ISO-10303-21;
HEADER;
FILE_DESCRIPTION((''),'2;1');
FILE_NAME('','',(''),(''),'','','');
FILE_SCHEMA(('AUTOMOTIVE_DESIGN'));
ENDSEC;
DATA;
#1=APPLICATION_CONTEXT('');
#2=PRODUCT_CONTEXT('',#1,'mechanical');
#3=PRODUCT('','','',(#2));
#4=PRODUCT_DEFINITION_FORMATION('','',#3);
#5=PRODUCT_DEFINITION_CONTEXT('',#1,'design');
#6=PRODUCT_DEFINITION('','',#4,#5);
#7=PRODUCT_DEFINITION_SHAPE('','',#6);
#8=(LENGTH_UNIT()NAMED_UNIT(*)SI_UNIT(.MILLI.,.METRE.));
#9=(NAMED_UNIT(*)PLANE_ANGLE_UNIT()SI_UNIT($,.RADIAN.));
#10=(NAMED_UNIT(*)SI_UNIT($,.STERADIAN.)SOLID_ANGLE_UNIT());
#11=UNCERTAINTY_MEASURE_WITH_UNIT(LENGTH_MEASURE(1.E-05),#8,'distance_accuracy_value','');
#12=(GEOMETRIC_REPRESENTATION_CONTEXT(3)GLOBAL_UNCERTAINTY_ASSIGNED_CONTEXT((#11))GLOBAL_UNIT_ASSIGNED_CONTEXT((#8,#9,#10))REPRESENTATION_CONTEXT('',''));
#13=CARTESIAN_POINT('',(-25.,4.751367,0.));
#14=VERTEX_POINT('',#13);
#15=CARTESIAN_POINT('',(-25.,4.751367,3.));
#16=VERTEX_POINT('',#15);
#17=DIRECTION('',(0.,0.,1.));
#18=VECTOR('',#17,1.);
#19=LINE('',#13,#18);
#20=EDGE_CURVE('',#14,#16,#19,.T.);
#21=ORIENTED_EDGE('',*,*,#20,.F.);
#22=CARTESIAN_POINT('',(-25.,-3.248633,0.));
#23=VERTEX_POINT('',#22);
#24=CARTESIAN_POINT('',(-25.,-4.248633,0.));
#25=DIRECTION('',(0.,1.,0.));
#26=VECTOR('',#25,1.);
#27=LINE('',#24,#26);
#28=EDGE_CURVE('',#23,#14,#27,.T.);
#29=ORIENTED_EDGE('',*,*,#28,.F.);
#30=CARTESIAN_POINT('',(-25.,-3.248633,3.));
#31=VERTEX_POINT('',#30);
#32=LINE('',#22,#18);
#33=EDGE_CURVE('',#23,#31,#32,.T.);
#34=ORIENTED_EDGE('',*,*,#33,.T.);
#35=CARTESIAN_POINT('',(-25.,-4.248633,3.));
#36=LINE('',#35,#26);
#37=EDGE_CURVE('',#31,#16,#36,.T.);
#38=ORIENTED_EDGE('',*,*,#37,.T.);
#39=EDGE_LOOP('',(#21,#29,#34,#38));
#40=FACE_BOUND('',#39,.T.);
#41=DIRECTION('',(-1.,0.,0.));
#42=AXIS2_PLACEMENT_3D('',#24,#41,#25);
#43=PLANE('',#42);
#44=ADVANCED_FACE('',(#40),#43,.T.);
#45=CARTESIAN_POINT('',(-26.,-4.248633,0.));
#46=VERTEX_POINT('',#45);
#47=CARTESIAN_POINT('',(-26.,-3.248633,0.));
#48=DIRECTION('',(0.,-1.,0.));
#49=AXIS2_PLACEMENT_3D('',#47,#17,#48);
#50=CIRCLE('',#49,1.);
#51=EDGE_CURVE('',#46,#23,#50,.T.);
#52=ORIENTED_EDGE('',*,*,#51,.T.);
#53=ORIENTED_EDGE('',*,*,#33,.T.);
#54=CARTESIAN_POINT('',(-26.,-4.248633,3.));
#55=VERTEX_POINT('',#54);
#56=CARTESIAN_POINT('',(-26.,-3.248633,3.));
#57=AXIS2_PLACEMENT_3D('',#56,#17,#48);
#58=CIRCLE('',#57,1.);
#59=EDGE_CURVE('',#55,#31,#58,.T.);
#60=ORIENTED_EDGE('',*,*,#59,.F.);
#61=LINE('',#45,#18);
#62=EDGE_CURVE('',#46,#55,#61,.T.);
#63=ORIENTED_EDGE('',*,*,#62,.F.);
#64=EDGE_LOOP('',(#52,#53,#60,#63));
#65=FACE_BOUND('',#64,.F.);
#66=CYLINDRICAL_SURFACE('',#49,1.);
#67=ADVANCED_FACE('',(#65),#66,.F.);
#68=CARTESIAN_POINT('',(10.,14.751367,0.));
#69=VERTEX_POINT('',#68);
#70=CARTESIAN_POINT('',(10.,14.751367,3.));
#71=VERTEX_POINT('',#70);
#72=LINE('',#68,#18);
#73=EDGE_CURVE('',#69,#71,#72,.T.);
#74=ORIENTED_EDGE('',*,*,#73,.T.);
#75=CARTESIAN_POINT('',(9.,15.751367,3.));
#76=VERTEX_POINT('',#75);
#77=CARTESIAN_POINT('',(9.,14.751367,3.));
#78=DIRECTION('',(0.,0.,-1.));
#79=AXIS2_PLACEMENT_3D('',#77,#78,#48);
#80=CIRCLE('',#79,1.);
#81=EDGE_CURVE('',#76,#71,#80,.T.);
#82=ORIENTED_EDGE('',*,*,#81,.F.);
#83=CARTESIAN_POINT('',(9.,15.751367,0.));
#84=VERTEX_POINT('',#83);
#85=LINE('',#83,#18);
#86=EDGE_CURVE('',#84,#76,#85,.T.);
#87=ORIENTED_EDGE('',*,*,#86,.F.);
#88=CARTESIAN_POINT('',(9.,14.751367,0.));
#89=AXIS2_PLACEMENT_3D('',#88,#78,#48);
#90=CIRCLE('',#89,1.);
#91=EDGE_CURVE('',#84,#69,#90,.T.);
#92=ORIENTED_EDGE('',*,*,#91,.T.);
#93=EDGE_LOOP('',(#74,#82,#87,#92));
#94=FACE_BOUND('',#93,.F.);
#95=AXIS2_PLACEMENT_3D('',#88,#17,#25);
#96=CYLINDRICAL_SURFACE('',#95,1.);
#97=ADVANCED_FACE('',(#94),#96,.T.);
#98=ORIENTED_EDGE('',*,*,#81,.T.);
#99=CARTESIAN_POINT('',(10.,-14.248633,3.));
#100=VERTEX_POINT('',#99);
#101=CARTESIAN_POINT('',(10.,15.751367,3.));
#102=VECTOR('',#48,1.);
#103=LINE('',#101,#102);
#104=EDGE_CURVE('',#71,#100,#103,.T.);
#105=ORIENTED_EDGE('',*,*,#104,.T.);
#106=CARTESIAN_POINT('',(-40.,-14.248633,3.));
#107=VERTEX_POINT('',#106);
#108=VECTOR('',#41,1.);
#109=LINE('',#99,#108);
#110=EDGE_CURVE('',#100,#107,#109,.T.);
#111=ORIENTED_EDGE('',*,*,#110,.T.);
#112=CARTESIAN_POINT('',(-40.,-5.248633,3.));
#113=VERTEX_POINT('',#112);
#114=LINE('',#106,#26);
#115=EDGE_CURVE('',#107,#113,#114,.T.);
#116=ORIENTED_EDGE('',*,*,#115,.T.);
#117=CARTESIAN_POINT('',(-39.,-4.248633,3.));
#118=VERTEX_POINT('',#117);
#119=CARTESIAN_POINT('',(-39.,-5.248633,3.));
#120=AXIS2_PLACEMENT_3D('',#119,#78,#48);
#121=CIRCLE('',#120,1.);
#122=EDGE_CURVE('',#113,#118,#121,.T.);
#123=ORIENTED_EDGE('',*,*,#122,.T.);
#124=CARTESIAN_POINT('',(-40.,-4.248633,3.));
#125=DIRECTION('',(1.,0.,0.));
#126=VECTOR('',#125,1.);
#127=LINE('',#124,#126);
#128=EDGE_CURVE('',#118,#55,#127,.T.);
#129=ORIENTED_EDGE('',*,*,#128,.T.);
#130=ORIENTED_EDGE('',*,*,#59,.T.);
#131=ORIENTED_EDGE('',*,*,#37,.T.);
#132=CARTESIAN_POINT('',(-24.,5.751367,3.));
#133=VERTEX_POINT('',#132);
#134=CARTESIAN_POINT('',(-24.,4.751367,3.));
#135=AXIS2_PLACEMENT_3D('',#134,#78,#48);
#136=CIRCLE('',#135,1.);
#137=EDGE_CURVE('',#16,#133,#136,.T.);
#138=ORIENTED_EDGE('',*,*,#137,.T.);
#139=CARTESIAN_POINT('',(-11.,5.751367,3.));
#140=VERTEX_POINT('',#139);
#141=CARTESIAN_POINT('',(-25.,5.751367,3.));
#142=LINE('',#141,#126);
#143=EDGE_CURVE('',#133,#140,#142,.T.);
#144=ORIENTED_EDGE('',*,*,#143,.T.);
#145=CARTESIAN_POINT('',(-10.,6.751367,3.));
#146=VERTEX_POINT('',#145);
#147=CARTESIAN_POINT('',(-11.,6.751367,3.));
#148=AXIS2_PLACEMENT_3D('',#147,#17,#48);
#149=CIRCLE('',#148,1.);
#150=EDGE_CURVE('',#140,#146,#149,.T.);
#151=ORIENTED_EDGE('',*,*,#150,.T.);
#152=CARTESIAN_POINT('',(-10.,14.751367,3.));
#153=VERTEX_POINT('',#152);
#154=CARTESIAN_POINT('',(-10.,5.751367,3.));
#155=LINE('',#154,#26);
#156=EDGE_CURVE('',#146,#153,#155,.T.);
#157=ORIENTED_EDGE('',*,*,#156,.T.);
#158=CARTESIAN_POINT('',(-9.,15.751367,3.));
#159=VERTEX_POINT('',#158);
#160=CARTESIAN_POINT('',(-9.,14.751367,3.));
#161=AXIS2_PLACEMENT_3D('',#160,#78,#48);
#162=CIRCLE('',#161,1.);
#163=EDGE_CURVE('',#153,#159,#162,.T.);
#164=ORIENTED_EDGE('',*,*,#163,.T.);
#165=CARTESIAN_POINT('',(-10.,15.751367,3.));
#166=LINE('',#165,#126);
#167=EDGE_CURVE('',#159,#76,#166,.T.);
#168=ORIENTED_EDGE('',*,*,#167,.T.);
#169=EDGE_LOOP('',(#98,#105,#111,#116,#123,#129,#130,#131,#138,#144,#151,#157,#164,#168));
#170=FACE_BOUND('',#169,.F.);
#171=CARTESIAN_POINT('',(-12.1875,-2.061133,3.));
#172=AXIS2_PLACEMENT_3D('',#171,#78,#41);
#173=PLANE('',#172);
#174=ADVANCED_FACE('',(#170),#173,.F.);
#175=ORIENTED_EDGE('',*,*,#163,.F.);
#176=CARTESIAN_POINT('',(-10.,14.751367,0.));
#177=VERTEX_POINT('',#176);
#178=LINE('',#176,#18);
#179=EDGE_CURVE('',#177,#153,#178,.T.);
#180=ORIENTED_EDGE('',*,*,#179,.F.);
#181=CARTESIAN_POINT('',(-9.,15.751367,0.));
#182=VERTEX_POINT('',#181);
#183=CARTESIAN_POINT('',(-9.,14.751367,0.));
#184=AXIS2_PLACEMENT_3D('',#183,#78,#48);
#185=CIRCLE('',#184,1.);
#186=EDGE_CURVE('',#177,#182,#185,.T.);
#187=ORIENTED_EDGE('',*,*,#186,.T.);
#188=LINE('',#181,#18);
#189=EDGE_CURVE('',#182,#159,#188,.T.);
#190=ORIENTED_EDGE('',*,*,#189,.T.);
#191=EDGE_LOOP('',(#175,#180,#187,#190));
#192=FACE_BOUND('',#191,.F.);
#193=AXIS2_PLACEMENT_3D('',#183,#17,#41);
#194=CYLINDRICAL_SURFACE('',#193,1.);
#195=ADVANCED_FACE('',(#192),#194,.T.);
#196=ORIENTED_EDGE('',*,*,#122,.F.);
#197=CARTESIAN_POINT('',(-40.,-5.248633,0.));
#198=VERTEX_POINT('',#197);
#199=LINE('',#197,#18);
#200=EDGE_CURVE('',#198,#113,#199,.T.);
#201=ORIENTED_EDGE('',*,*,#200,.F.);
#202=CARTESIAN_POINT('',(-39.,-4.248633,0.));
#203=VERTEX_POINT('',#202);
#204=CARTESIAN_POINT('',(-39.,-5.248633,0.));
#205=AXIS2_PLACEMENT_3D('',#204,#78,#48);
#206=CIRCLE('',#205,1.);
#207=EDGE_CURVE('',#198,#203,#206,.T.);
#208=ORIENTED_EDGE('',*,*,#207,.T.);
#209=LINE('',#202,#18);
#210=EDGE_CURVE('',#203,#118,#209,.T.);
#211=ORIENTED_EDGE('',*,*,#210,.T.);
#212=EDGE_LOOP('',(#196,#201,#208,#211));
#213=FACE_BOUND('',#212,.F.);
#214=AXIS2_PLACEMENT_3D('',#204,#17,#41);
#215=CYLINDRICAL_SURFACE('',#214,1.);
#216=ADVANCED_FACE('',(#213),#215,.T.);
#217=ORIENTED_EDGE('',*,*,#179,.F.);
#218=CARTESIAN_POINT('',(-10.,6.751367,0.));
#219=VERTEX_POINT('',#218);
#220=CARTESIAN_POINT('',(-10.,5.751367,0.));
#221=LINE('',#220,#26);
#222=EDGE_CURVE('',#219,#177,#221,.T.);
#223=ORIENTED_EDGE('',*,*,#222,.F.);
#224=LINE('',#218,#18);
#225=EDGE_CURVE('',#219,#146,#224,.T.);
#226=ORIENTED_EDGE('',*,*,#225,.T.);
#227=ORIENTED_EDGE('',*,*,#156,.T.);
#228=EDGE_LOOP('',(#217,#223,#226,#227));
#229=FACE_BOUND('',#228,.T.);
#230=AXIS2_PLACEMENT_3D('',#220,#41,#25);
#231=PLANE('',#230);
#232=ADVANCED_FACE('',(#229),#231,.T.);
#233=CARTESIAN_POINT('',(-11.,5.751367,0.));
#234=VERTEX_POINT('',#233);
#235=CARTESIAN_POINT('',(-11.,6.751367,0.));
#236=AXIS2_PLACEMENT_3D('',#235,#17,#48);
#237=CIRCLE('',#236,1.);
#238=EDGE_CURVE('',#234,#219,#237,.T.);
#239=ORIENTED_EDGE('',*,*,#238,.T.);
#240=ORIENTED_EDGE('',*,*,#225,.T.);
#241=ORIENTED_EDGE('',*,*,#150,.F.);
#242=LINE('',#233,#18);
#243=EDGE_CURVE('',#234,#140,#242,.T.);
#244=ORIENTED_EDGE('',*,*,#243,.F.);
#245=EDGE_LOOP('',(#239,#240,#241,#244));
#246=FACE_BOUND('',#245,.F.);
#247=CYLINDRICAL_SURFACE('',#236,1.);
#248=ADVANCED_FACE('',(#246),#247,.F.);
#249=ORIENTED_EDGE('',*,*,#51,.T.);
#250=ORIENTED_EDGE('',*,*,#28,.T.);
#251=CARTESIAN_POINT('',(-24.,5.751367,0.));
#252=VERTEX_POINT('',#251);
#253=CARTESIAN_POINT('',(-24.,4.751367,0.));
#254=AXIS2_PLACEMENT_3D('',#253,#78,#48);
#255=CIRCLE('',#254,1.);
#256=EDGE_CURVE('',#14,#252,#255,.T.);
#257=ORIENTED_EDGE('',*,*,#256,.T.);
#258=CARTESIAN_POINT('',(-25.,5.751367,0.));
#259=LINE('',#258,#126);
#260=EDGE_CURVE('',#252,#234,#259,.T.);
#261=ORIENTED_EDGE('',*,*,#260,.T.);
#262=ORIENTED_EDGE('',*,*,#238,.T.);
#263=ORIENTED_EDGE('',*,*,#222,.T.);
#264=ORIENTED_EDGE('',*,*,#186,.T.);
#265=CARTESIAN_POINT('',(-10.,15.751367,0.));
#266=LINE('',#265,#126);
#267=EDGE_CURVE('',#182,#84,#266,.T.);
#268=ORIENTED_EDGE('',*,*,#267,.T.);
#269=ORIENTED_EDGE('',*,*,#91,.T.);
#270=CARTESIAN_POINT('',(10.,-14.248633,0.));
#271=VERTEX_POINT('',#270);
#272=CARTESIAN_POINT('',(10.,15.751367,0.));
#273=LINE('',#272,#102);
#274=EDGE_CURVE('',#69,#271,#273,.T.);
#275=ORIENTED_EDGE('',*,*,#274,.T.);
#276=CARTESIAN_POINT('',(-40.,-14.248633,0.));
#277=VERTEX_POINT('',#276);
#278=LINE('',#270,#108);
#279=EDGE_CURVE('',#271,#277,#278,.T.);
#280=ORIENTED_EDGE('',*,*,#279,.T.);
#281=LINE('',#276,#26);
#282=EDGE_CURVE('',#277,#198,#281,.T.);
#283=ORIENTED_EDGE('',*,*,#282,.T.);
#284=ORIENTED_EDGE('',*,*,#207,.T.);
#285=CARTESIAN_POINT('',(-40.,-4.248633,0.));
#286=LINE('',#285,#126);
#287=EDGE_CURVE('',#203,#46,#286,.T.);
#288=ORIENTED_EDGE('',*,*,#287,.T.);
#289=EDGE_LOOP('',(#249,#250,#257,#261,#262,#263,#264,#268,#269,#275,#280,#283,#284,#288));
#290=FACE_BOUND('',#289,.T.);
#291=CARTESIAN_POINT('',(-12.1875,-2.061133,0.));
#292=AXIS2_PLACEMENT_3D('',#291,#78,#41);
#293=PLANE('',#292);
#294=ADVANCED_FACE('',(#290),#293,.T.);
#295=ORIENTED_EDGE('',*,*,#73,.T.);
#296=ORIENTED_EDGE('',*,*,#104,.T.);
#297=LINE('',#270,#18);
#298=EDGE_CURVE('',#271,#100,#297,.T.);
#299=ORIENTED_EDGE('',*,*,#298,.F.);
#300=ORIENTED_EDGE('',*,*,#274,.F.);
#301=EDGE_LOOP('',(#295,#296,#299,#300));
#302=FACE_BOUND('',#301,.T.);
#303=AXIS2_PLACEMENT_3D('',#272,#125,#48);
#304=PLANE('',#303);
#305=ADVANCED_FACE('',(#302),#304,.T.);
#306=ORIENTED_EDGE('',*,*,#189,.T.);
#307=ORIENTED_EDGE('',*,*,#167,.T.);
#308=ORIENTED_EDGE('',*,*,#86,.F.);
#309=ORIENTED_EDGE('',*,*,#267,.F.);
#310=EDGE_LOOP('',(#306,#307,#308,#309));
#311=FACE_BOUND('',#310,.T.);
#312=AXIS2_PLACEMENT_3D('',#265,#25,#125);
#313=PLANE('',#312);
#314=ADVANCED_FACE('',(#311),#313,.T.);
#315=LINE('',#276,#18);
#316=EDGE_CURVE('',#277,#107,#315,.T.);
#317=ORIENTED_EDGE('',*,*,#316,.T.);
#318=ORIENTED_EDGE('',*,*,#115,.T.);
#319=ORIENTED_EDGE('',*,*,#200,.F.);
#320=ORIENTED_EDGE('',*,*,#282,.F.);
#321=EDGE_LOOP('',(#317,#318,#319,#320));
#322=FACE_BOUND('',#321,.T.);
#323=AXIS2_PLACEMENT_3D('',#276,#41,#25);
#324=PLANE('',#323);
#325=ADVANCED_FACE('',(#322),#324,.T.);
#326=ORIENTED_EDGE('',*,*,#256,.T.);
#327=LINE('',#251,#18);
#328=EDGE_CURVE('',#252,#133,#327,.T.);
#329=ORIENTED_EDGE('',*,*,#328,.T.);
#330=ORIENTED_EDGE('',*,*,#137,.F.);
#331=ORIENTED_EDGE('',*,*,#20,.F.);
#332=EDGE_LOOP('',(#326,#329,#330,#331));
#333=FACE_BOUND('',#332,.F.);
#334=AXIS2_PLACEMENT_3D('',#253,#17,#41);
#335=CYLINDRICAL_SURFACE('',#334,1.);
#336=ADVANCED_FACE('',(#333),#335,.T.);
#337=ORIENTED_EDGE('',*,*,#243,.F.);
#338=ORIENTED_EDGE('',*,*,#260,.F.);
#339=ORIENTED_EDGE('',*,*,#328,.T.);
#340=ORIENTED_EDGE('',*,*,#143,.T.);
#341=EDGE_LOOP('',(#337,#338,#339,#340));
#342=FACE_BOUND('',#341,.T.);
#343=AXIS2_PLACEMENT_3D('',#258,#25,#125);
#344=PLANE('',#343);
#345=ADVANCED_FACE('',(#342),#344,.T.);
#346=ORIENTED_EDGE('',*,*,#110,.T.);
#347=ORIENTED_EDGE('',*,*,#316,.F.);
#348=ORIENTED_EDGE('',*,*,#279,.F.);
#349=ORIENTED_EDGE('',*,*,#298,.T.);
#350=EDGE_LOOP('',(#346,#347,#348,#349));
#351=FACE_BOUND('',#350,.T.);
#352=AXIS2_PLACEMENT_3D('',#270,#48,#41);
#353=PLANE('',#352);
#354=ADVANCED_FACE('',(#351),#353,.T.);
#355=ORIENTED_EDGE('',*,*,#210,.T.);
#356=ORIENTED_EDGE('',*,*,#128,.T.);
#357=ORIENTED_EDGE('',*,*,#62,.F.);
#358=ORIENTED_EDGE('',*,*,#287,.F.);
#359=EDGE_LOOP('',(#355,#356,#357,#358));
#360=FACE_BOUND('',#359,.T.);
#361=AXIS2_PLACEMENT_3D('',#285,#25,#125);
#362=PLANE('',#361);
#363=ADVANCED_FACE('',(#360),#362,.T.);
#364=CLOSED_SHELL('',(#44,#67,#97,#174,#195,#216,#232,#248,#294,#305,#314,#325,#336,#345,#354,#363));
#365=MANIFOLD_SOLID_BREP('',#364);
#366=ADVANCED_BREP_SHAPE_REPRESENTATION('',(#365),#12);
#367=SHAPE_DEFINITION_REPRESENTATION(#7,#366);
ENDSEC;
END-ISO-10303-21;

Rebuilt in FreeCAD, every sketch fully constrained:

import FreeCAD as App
import Part
import Sketcher


def edges_at(feature, points):
    """Names of the edges that pass closest to the given points."""
    edges = feature.Shape.Edges
    near = lambda p: min(range(len(edges)), key=lambda i: edges[i].distToShape(Part.Vertex(*p))[0])
    return sorted({f"Edge{near(p) + 1}" for p in points})


def add_polygon(sketch, points):
    """Adds a closed chain of lines whose ends are joined by coincident constraints."""
    first, n = sketch.GeometryCount, len(points)
    for a, b in zip(points, points[1:] + points[:1]):
        sketch.addGeometry(Part.LineSegment(App.Vector(*a, 0), App.Vector(*b, 0)), False)
    for i in range(n):
        sketch.addConstraint(Sketcher.Constraint("Coincident", first + i, 2, first + (i + 1) % n, 1))

doc = App.newDocument("Part")
body = doc.addObject("PartDesign::Body", "Body")

sketch1 = body.newObject("Sketcher::SketchObject", "Sketch")
sketch1.AttachmentSupport = (doc.getObject("XY_Plane"), [""])
sketch1.MapMode = "FlatFace"
add_polygon(sketch1, [(10, 15.751367), (-10, 15.751367), (-10, 5.751367), (-25, 5.751367), (-25, -4.248633), (-40, -4.248633), (-40, -14.248633), (10, -14.248633)])
sketch1.addConstraint([
    Sketcher.Constraint("Horizontal", 0),
    Sketcher.Constraint("Vertical", 1),
    Sketcher.Constraint("Horizontal", 2),
    Sketcher.Constraint("Vertical", 3),
    Sketcher.Constraint("Horizontal", 4),
    Sketcher.Constraint("Vertical", 5),
    Sketcher.Constraint("Horizontal", 6),
    Sketcher.Constraint("Vertical", 7),
    Sketcher.Constraint("Equal", 2, 4),
    Sketcher.Constraint("Equal", 1, 3),
    Sketcher.Constraint("Equal", 3, 5),
    Sketcher.Constraint("DistanceX", 0, 2, 0, 1, 20.0),
    Sketcher.Constraint("DistanceX", 2, 2, 2, 1, 15.0),
    Sketcher.Constraint("DistanceY", 1, 2, 1, 1, 10.0),
    Sketcher.Constraint("DistanceX", 0, 2, -1, 1, 10.0),
    Sketcher.Constraint("DistanceY", -1, 1, 0, 2, 15.751367),
])
pad1 = body.newObject("PartDesign::Pad", "Pad")
pad1.Profile = sketch1
pad1.Length = 3
doc.recompute()

fillet = body.newObject("PartDesign::Fillet", "Fillet")
fillet.Base = (pad1, edges_at(pad1, [(-40, -4.249, 1.5)]))
fillet.Radius = 1
doc.recompute()

fillet2 = body.newObject("PartDesign::Fillet", "Fillet001")
fillet2.Base = (fillet, edges_at(fillet, [(-25, -4.249, 1.5)]))
fillet2.Radius = 1
doc.recompute()

fillet3 = body.newObject("PartDesign::Fillet", "Fillet002")
fillet3.Base = (fillet2, edges_at(fillet2, [(-25, 5.751, 1.5)]))
fillet3.Radius = 1
doc.recompute()

fillet4 = body.newObject("PartDesign::Fillet", "Fillet003")
fillet4.Base = (fillet3, edges_at(fillet3, [(-10, 5.751, 1.5)]))
fillet4.Radius = 1
doc.recompute()

fillet5 = body.newObject("PartDesign::Fillet", "Fillet004")
fillet5.Base = (fillet4, edges_at(fillet4, [(-10, 15.751, 1.5)]))
fillet5.Radius = 1
doc.recompute()

fillet6 = body.newObject("PartDesign::Fillet", "Fillet005")
fillet6.Base = (fillet5, edges_at(fillet5, [(10, 15.751, 1.5)]))
fillet6.Radius = 1

doc.recompute()
